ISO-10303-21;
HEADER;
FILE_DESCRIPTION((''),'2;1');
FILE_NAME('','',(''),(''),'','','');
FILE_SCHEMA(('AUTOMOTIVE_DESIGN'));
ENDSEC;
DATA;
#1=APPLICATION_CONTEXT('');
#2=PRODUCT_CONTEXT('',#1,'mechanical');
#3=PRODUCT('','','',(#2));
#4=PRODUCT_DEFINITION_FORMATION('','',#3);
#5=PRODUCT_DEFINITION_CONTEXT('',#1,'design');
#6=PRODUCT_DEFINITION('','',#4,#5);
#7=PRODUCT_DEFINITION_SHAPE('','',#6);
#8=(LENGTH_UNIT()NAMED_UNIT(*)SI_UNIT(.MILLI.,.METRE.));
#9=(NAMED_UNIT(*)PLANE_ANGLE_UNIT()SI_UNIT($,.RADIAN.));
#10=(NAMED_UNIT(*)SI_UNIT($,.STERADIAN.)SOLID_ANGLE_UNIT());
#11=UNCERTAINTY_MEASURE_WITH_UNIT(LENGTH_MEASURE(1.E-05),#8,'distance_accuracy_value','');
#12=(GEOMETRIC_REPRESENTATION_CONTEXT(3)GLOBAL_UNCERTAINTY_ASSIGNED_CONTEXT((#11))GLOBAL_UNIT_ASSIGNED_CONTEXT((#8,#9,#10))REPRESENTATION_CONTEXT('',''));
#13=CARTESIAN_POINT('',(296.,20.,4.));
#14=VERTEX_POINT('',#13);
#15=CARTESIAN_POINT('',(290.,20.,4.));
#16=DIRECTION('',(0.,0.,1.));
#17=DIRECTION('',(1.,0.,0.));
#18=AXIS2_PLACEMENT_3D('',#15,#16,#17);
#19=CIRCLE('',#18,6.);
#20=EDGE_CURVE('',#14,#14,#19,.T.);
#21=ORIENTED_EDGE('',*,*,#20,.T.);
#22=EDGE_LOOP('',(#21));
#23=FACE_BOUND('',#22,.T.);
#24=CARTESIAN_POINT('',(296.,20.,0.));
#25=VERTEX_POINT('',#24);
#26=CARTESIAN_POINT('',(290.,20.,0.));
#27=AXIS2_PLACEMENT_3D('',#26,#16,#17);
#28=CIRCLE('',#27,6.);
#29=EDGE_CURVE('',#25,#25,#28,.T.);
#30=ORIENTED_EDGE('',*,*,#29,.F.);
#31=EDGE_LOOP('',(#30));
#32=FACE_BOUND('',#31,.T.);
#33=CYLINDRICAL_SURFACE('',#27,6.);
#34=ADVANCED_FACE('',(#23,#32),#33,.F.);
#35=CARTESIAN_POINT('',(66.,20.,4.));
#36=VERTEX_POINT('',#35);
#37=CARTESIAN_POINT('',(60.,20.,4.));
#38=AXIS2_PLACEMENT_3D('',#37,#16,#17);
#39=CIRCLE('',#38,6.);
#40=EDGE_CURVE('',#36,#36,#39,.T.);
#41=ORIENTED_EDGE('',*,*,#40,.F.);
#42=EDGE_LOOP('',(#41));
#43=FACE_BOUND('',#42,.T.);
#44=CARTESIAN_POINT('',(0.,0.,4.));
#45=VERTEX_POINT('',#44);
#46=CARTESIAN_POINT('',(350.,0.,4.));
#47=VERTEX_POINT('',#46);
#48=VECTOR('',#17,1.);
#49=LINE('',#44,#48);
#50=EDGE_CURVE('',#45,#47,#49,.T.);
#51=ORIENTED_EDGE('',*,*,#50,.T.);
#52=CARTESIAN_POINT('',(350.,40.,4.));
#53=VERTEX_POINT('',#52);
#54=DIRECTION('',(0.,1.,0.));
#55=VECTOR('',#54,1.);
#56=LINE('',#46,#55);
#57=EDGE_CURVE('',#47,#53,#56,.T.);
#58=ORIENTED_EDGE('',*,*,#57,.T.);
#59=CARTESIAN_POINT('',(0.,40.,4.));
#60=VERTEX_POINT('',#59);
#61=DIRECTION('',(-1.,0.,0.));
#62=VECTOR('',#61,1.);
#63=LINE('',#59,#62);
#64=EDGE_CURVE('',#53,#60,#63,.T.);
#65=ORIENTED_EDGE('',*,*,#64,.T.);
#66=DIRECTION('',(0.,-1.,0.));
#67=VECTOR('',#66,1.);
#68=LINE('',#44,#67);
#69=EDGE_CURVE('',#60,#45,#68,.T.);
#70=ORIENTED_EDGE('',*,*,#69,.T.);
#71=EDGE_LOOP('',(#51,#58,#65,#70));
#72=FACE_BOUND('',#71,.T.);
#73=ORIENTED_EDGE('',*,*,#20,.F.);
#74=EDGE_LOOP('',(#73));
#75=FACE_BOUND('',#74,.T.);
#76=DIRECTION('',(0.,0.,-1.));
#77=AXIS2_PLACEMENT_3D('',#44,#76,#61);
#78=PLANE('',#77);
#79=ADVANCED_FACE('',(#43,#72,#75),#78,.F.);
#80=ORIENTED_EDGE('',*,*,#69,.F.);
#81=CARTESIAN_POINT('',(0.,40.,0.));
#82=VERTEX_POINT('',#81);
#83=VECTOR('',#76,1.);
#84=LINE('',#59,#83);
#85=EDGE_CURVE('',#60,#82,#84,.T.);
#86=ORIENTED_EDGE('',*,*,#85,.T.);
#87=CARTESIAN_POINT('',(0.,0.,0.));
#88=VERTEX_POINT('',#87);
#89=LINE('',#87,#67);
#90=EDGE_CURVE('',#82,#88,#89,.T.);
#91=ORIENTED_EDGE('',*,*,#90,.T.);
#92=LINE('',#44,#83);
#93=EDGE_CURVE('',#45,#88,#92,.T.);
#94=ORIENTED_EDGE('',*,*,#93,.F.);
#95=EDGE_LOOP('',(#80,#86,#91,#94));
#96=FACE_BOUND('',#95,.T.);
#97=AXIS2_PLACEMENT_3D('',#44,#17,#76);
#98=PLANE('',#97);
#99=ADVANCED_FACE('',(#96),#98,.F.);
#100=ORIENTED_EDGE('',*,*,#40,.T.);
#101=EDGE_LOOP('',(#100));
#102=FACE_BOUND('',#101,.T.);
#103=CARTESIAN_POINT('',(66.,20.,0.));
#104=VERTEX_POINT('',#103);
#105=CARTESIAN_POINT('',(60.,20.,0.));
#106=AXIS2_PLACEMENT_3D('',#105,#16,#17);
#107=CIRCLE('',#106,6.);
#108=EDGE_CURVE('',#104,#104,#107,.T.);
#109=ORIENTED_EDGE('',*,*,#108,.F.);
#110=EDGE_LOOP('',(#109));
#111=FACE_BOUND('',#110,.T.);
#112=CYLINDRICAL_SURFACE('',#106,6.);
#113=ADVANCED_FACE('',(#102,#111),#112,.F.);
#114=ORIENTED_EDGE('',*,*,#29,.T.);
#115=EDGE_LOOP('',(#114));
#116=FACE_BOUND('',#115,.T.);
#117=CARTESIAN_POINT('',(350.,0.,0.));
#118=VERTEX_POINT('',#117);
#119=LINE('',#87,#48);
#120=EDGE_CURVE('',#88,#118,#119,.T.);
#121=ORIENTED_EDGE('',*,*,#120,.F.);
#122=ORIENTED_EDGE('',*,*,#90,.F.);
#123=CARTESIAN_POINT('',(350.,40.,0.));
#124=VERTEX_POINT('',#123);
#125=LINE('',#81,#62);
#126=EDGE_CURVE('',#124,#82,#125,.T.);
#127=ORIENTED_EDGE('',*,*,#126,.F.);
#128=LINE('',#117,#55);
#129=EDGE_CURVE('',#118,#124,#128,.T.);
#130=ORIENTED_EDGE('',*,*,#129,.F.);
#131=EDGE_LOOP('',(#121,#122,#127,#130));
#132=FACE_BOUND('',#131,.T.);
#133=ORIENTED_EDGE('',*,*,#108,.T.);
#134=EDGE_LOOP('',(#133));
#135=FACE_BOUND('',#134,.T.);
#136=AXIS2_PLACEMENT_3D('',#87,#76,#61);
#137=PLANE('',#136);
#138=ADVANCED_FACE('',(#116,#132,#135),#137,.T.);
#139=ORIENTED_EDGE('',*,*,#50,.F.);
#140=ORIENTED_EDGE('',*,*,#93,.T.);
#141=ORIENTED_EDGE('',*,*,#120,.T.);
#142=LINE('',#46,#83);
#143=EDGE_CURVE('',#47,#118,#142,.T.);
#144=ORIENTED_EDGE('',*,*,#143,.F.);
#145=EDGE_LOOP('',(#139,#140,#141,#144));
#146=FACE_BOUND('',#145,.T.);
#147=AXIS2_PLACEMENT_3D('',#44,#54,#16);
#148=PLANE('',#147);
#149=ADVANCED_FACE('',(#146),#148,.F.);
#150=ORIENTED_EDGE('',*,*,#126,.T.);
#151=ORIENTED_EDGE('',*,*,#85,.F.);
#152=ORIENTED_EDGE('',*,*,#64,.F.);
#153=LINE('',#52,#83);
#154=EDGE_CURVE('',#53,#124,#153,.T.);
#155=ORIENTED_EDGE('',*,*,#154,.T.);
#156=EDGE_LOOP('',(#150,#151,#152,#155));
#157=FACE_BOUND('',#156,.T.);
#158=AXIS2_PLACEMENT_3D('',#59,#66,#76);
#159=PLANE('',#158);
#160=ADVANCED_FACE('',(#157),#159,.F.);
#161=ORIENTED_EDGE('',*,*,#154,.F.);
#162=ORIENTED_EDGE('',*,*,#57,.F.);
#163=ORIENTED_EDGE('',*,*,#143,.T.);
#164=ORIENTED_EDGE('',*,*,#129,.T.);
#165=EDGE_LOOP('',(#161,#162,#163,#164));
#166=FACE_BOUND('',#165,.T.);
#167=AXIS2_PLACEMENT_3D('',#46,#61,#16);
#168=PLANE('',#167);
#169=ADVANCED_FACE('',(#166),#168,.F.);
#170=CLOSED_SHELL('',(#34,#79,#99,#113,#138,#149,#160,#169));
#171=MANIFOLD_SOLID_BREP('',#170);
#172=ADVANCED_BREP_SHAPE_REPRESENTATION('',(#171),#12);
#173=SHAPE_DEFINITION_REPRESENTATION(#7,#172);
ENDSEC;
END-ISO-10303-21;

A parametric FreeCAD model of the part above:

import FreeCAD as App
import Part
import Sketcher
Q = App.Units.Quantity


def add_polygon(sketch, points):
    """Adds a closed chain of lines whose ends are joined by coincident constraints."""
    first, n = sketch.GeometryCount, len(points)
    for a, b in zip(points, points[1:] + points[:1]):
        sketch.addGeometry(Part.LineSegment(App.Vector(*a, 0), App.Vector(*b, 0)), False)
    for i in range(n):
        sketch.addConstraint(Sketcher.Constraint("Coincident", first + i, 2, first + (i + 1) % n, 1))

doc = App.newDocument("Part")
body = doc.addObject("PartDesign::Body", "Body")

sketch1 = body.newObject("Sketcher::SketchObject", "Sketch")
sketch1.AttachmentSupport = (doc.getObject("XY_Plane"), [""])
sketch1.MapMode = "FlatFace"
add_polygon(sketch1, [(0, 40), (0, 0), (350, 0), (350, 40)])
sketch1.addConstraint([
    Sketcher.Constraint("Vertical", 0),
    Sketcher.Constraint("Horizontal", 1),
    Sketcher.Constraint("Vertical", 2),
    Sketcher.Constraint("Horizontal", 3),
    Sketcher.Constraint("Coincident", 0, 2, -1, 1),
    Sketcher.Constraint("DistanceX", 1, 1, 1, 2, Q("350 mm")),
    Sketcher.Constraint("DistanceY", 0, 2, 0, 1, Q("40 mm")),
])
pad1 = body.newObject("PartDesign::Pad", "Pad")
pad1.Profile = sketch1
pad1.Length = 4

sketch2 = body.newObject("Sketcher::SketchObject", "Sketch001")
sketch2.AttachmentSupport = (doc.getObject("XY_Plane"), [""])
sketch2.MapMode = "FlatFace"
sketch2.AttachmentOffset = App.Placement(App.Vector(0, 0, 4), App.Rotation())
sketch2.addGeometry(Part.Circle(App.Vector(60, 20, 0), App.Vector(0, 0, 1), 6), False)
sketch2.addConstraint([
    Sketcher.Constraint("Diameter", 0, Q("12 mm")),
    Sketcher.Constraint("DistanceX", -1, 1, 0, 3, Q("60 mm")),
    Sketcher.Constraint("DistanceY", -1, 1, 0, 3, Q("20 mm")),
])
pocket1 = body.newObject("PartDesign::Pocket", "Pocket")
pocket1.Profile = sketch2
pocket1.Type = "ThroughAll"

sketch3 = body.newObject("Sketcher::SketchObject", "Sketch002")
sketch3.AttachmentSupport = (doc.getObject("XY_Plane"), [""])
sketch3.MapMode = "FlatFace"
sketch3.AttachmentOffset = App.Placement(App.Vector(0, 0, 4), App.Rotation())
sketch3.addGeometry(Part.Circle(App.Vector(290, 20, 0), App.Vector(0, 0, 1), 6), False)
sketch3.addConstraint([
    Sketcher.Constraint("Diameter", 0, Q("12 mm")),
    Sketcher.Constraint("DistanceX", -1, 1, 0, 3, Q("290 mm")),
    Sketcher.Constraint("DistanceY", -1, 1, 0, 3, Q("20 mm")),
])
pocket2 = body.newObject("PartDesign::Pocket", "Pocket001")
pocket2.Profile = sketch3
pocket2.Type = "ThroughAll"

doc.recompute()
